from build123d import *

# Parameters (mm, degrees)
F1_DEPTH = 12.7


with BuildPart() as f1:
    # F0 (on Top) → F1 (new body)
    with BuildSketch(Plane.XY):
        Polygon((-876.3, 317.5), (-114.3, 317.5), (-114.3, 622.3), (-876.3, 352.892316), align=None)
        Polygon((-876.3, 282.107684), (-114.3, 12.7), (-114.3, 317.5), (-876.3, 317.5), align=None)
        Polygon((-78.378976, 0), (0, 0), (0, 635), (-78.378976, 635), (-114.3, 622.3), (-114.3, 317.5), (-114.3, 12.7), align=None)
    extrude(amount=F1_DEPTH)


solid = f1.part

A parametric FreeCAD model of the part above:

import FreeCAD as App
import Part
import Sketcher
Q = App.Units.Quantity


def add_polygon(sketch, points):
    """Adds a closed chain of lines whose ends are joined by coincident constraints."""
    first, n = sketch.GeometryCount, len(points)
    for a, b in zip(points, points[1:] + points[:1]):
        sketch.addGeometry(Part.LineSegment(App.Vector(*a, 0), App.Vector(*b, 0)), False)
    for i in range(n):
        sketch.addConstraint(Sketcher.Constraint("Coincident", first + i, 2, first + (i + 1) % n, 1))

doc = App.newDocument("Part")
body = doc.addObject("PartDesign::Body", "Body")

sketch1 = body.newObject("Sketcher::SketchObject", "Sketch")
sketch1.AttachmentSupport = (doc.getObject("XY_Plane"), [""])
sketch1.MapMode = "FlatFace"
add_polygon(sketch1, [(-114, 622), (-876, 353), (-876, 282), (-114, 13), (-78, 0), (0, 0), (0, 635), (-78, 635)])
sketch1.addConstraint([
    Sketcher.Constraint("Vertical", 1),
    Sketcher.Constraint("Horizontal", 4),
    Sketcher.Constraint("Vertical", 5),
    Sketcher.Constraint("Horizontal", 6),
    Sketcher.Constraint("Coincident", 4, 2, -1, 1),
    Sketcher.Constraint("Parallel", 2, 3),
    Sketcher.Constraint("Parallel", 0, 7),
    Sketcher.Constraint("Vertical", 3, 2, 6, 2),
    Sketcher.Constraint("Vertical", 2, 2, 7, 2),
    Sketcher.Constraint("Equal", 0, 2),
    Sketcher.Constraint("DistanceY", 5, 1, 5, 2, Q("25 in")),
    Sketcher.Constraint("DistanceX", 1, 2, 2, 2, Q("30 in")),
    Sketcher.Constraint("DistanceY", 2, 2, 7, 2, Q("24 in")),
    Sketcher.Constraint("Distance", 3, Q("1.5 in")),
    Sketcher.Constraint("DistanceX", 0, 2, -1, 1, Q("34.5 in")),
])
pad1 = body.newObject("PartDesign::Pad", "Pad")
pad1.Profile = sketch1
pad1.Length = Q("0.5 in")

doc.recompute()
